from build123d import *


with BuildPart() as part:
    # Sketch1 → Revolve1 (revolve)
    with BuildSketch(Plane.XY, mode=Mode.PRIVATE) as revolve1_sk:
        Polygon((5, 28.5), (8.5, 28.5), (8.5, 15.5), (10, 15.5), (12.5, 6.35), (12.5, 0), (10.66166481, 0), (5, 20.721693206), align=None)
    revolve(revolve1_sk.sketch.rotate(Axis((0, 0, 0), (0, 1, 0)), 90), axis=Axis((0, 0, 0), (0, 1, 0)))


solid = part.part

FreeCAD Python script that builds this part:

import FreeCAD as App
import Part
import Sketcher
Q = App.Units.Quantity


def add_polygon(sketch, points):
    """Adds a closed chain of lines whose ends are joined by coincident constraints."""
    first, n = sketch.GeometryCount, len(points)
    for a, b in zip(points, points[1:] + points[:1]):
        sketch.addGeometry(Part.LineSegment(App.Vector(*a, 0), App.Vector(*b, 0)), False)
    for i in range(n):
        sketch.addConstraint(Sketcher.Constraint("Coincident", first + i, 2, first + (i + 1) % n, 1))

doc = App.newDocument("Part")
body = doc.addObject("PartDesign::Body", "Body")

sketch1 = body.newObject("Sketcher::SketchObject", "Sketch")
sketch1.AttachmentSupport = (doc.getObject("XY_Plane"), [""])
sketch1.MapMode = "FlatFace"
add_polygon(sketch1, [(8.5, 28.5), (5, 28.5), (5, 20.7), (10.7, 0), (12.5, 0), (12.5, 6.3), (10, 15.5), (8.5, 15.5)])
sketch1.addConstraint([
    Sketcher.Constraint("Horizontal", 0),
    Sketcher.Constraint("Vertical", 1),
    Sketcher.Constraint("Horizontal", 3),
    Sketcher.Constraint("Vertical", 4),
    Sketcher.Constraint("Horizontal", 6),
    Sketcher.Constraint("Vertical", 7),
    Sketcher.Constraint("PointOnObject", 2, 2, -1),
    Sketcher.Constraint("Parallel", 2, 5),
    Sketcher.Constraint("DistanceY", 7, 1, 7, 2, Q("13 mm")),
    Sketcher.Constraint("DistanceX", 0, 2, 0, 1, Q("3.5 mm")),
    Sketcher.Constraint("DistanceX", 6, 2, 6, 1, Q("1.5 mm")),
    Sketcher.Constraint("DistanceX", -1, 1, 0, 2, Q("5 mm")),
    Sketcher.Constraint("DistanceX", 6, 2, 4, 2, Q("4 mm")),
    Sketcher.Constraint("DistanceY", 4, 1, 4, 2, Q("6.35 mm")),
    Sketcher.Constraint("DistanceY", -1, 1, 0, 2, Q("28.5 mm")),
    Sketcher.Constraint("DistanceX", 3, 1, 3, 2, Q("1.838335 mm")),
])
revolution = body.newObject("PartDesign::Revolution", "Revolution")
revolution.Profile = sketch1
revolution.ReferenceAxis = (sketch1, ["V_Axis"])
revolution.Angle = 360

doc.recompute()
